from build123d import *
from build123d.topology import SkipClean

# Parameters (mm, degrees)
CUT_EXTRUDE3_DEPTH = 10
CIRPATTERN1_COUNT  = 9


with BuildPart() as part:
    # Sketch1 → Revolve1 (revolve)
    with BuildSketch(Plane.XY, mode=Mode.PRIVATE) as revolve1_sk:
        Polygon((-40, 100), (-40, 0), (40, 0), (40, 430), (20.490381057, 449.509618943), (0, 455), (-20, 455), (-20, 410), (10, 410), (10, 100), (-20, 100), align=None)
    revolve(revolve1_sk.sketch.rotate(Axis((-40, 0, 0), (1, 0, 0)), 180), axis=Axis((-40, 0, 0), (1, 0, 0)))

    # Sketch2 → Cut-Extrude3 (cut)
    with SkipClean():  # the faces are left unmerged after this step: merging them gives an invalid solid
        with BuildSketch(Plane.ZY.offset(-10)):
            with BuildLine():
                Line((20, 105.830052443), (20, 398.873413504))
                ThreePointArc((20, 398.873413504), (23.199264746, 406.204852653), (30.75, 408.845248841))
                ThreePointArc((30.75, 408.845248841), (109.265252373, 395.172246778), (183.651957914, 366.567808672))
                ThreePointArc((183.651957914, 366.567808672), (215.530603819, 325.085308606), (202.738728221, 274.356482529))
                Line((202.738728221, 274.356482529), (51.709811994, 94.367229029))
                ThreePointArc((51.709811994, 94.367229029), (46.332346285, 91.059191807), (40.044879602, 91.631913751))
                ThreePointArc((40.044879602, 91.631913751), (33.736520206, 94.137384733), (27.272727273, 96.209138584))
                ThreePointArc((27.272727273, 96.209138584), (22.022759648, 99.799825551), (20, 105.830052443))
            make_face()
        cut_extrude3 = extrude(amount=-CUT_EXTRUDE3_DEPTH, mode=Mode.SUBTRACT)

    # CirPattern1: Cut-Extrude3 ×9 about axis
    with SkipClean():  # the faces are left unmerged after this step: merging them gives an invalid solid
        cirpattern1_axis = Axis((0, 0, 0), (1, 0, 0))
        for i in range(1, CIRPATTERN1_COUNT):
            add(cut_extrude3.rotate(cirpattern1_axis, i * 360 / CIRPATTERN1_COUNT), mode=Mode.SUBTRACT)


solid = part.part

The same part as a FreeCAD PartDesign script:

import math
import FreeCAD as App
import Part
import Sketcher
from FreeCAD import Vector
Q = App.Units.Quantity

doc = App.newDocument("Part")
body = doc.addObject("PartDesign::Body", "Body")

sketch1 = body.newObject("Sketcher::SketchObject", "Sketch")
sketch1.AttachmentSupport = (doc.getObject("XY_Plane"), [""])
sketch1.MapMode = "FlatFace"
sketch1.addGeometry([
    Part.LineSegment(Vector(-40, 100, 0), Vector(-40, 0, 0)),
    Part.LineSegment(Vector(-40, 0, 0), Vector(40, 0, 0)),
    Part.LineSegment(Vector(40, 0, 0), Vector(40, 430, 0)),
    Part.LineSegment(Vector(40, 430, 0), Vector(20.490381, 449.509619, 0)),
    Part.LineSegment(Vector(20.490381, 449.509619, 0), Vector(0, 455, 0)),
    Part.LineSegment(Vector(0, 455, 0), Vector(-20, 455, 0)),
    Part.LineSegment(Vector(-20, 455, 0), Vector(-20, 410, 0)),
    Part.LineSegment(Vector(-20, 410, 0), Vector(10, 410, 0)),
    Part.LineSegment(Vector(10, 410, 0), Vector(10, 100, 0)),
    Part.LineSegment(Vector(10, 100, 0), Vector(-40, 100, 0)),
], False)
sketch1.addConstraint([
    Sketcher.Constraint("Coincident", 0, 2, 1, 1),
    Sketcher.Constraint("Coincident", 1, 2, 2, 1),
    Sketcher.Constraint("Coincident", 2, 2, 3, 1),
    Sketcher.Constraint("Coincident", 3, 2, 4, 1),
    Sketcher.Constraint("Coincident", 4, 2, 5, 1),
    Sketcher.Constraint("Coincident", 5, 2, 6, 1),
    Sketcher.Constraint("Coincident", 6, 2, 7, 1),
    Sketcher.Constraint("Coincident", 7, 2, 8, 1),
    Sketcher.Constraint("Coincident", 8, 2, 9, 1),
    Sketcher.Constraint("Coincident", 9, 2, 0, 1),
    Sketcher.Constraint("Vertical", 0),
    Sketcher.Constraint("Horizontal", 1),
    Sketcher.Constraint("Vertical", 2),
    Sketcher.Constraint("Horizontal", 5),
    Sketcher.Constraint("Vertical", 6),
    Sketcher.Constraint("Horizontal", 7),
    Sketcher.Constraint("Vertical", 8),
    Sketcher.Constraint("Horizontal", 9),
    Sketcher.Constraint("Symmetric", 0, 2, 1, 2, -1, 1),
    Sketcher.Constraint("PointOnObject", 4, 2, -2),
    Sketcher.Constraint("DistanceX", 1, 1, 1, 2, 80.0),
    Sketcher.Constraint("DistanceX", 5, 2, 5, 1, 20.0),
    Sketcher.Constraint("DistanceX", 7, 1, 7, 2, 30.0),
    Sketcher.Constraint("DistanceY", 0, 2, 0, 1, 100.0),
    Sketcher.Constraint("DistanceY", 2, 1, 2, 2, 430.0),
    Sketcher.Constraint("DistanceY", 6, 2, 6, 1, 45.0),
    Sketcher.Constraint("DistanceY", 8, 2, 8, 1, 310.0),
    Sketcher.Constraint("Angle", 3, Q("135 deg")),
    Sketcher.Constraint("Angle", 4, Q("165 deg")),
])
revolution = body.newObject("PartDesign::Revolution", "Revolution")
revolution.Profile = sketch1
revolution.ReferenceAxis = (sketch1, ["H_Axis"])
revolution.Angle = 360

sketch2 = body.newObject("Sketcher::SketchObject", "Sketch001")
sketch2.AttachmentSupport = (doc.getObject("YZ_Plane"), [""])
sketch2.MapMode = "FlatFace"
sketch2.AttachmentOffset = App.Placement(Vector(0, 0, 10), App.Rotation())
sketch2.addGeometry([
    Part.LineSegment(Vector(398.873414, 20, 0), Vector(105.830052, 20, 0)),
    Part.ArcOfCircle(Part.Circle(Vector(105.830052, 30, 0), Vector(0, 0, 1), 10), math.radians(-164.17338), math.radians(-90)),
    Part.ArcOfCircle(Part.Circle(Vector(0, 0, 0), Vector(0, 0, 1), 100), math.radians(15.82662), math.radians(23.606238)),
    Part.ArcOfCircle(Part.Circle(Vector(100.795105, 44.049368, 0), Vector(0, 0, 1), 10), math.radians(130), math.radians(203.606238)),
    Part.LineSegment(Vector(94.367229, 51.709812, 0), Vector(274.356483, 202.738728, 0)),
    Part.ArcOfCircle(Part.Circle(Vector(312.923739, 156.776062, 0), Vector(0, 0, 1), 60), math.radians(26.611055), math.radians(130)),
    Part.ArcOfCircle(Part.Circle(Vector(0, 0, 0), Vector(0, 0, 1), 410), math.radians(4.301222), math.radians(26.611055)),
    Part.ArcOfCircle(Part.Circle(Vector(398.873414, 30, 0), Vector(0, 0, 1), 10), math.radians(-90), math.radians(4.301222)),
], False)
sketch2.addConstraint([
    Sketcher.Constraint("Tangent", 0, 2, 1, 2),
    Sketcher.Constraint("Tangent", 1, 1, 2, 1),
    Sketcher.Constraint("Tangent", 2, 2, 3, 2),
    Sketcher.Constraint("Tangent", 3, 1, 4, 1),
    Sketcher.Constraint("Tangent", 4, 2, 5, 2),
    Sketcher.Constraint("Tangent", 5, 1, 6, 2),
    Sketcher.Constraint("Tangent", 6, 1, 7, 2),
    Sketcher.Constraint("Tangent", 7, 1, 0, 1),
    Sketcher.Constraint("Horizontal", 0),
    Sketcher.Constraint("Coincident", 2, 3, -1, 1),
    Sketcher.Constraint("Coincident", 6, 3, -1, 1),
    Sketcher.Constraint("Equal", 1, 3),
    Sketcher.Constraint("Equal", 3, 7),
    Sketcher.Constraint("Radius", 1, 10.0),
    Sketcher.Constraint("Radius", 2, 100.0),
    Sketcher.Constraint("Radius", 5, 60.0),
    Sketcher.Constraint("Radius", 6, 410.0),
    Sketcher.Constraint("Angle", 4, Q("40 deg")),
    Sketcher.Constraint("DistanceY", -1, 1, 1, 3, 30.0),
    Sketcher.Constraint("DistanceX", -1, 1, 5, 3, 312.923739),
])
pocket1 = body.newObject("PartDesign::Pocket", "Pocket")
pocket1.Profile = sketch2
pocket1.Length = 10
pocket1.Reversed = True
doc.recompute()

polarpattern = body.newObject("PartDesign::PolarPattern", "PolarPattern")
polarpattern.Originals = [pocket1]
polarpattern.Axis = (doc.getObject("X_Axis"), [""])
polarpattern.Angle = 360
polarpattern.Occurrences = 9
body.Tip = polarpattern

doc.recompute()
